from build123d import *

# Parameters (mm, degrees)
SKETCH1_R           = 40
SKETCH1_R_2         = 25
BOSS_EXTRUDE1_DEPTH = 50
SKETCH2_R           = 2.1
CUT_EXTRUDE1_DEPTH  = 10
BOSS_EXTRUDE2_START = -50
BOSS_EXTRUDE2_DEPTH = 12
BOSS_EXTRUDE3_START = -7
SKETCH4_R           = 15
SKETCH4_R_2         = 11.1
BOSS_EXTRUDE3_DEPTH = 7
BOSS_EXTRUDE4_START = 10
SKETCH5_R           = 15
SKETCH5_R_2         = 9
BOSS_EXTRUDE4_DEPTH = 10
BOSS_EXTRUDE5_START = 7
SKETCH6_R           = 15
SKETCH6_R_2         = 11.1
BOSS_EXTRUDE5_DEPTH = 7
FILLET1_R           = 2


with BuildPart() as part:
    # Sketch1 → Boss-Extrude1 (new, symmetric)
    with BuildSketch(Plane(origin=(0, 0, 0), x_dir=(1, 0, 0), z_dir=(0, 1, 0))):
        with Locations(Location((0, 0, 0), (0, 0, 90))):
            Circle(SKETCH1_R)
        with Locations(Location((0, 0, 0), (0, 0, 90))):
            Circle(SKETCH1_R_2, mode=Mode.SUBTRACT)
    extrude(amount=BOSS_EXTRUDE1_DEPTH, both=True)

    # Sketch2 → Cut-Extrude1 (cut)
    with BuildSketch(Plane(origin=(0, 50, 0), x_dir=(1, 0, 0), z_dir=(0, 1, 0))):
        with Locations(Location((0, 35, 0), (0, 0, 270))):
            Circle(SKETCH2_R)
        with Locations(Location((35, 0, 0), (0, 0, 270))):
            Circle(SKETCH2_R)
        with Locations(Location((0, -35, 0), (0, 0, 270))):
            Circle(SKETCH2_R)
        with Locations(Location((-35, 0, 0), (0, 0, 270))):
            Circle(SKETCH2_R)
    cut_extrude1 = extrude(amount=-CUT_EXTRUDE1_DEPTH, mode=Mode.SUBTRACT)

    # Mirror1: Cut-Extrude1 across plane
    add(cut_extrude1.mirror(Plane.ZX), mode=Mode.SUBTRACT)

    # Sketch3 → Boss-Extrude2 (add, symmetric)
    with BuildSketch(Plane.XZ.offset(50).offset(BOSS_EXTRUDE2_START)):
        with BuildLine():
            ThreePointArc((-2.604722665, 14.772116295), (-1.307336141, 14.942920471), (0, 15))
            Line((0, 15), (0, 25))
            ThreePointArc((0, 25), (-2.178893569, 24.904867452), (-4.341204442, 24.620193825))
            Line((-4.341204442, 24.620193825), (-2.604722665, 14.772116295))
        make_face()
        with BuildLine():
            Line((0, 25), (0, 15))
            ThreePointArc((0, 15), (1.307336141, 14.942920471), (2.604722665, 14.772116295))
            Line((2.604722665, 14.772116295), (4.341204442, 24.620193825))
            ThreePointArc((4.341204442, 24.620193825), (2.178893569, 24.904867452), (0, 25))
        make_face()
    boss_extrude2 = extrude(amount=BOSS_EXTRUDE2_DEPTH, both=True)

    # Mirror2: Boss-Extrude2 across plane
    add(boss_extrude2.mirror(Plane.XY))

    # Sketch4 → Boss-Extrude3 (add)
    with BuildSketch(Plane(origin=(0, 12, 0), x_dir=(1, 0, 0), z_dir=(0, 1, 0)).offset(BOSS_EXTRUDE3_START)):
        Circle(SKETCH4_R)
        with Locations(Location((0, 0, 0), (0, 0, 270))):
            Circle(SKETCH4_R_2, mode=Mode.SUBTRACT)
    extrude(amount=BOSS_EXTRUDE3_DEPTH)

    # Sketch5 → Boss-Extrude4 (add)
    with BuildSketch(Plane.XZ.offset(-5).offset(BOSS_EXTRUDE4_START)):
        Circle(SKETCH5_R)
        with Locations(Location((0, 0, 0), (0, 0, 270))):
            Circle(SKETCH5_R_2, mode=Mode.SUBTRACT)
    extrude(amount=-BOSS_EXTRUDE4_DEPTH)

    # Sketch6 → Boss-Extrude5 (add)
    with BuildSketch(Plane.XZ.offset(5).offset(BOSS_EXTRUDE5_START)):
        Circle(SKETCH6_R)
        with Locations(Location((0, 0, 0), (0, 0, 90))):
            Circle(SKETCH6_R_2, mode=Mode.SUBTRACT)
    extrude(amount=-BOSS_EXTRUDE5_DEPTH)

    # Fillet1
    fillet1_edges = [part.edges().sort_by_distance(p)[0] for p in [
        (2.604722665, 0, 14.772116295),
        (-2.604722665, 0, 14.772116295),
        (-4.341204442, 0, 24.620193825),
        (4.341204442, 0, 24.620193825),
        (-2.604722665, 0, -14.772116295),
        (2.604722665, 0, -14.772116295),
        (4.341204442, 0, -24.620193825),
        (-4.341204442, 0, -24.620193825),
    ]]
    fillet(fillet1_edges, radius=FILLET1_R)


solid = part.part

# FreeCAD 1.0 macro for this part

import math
import FreeCAD as App
import Part
import Sketcher

V = App.Vector
Q = App.Units.Quantity


def edges_at(feature, points):
    """Names of the edges that pass closest to the given points."""
    edges = feature.Shape.Edges
    near = lambda p: min(range(len(edges)), key=lambda i: edges[i].distToShape(Part.Vertex(*p))[0])
    return sorted({f"Edge{near(p) + 1}" for p in points})

doc = App.newDocument("Part")
body = doc.addObject("PartDesign::Body", "Body")

# Sketch on XZ plane
sketch1 = body.newObject("Sketcher::SketchObject", "Sketch")
sketch1.AttachmentSupport = (doc.getObject("XZ_Plane"), [""])
sketch1.MapMode = "FlatFace"
sketch1.addGeometry([
    Part.Circle(V(0, 0, 0), V(0, 0, 1), 40),
    Part.Circle(V(0, 0, 0), V(0, 0, 1), 25),
], False)
sketch1.addConstraint([
    Sketcher.Constraint("Coincident", 0, 3, -1, 1),
    Sketcher.Constraint("Coincident", 1, 3, -1, 1),
    Sketcher.Constraint("Diameter", 0, Q("80 mm")),
    Sketcher.Constraint("Diameter", 1, Q("50 mm")),
])
pad1 = body.newObject("PartDesign::Pad", "Pad")
pad1.Profile = sketch1
pad1.Length = 100
pad1.Midplane = True

# Sketch on XZ plane
sketch2 = body.newObject("Sketcher::SketchObject", "Sketch001")
sketch2.AttachmentSupport = (doc.getObject("XZ_Plane"), [""])
sketch2.MapMode = "FlatFace"
sketch2.AttachmentOffset = App.Placement(V(0, 0, -50), App.Rotation())
sketch2.addGeometry([
    Part.Circle(V(0, -35, 0), V(0, 0, 1), 2.1),
    Part.Circle(V(35, 0, 0), V(0, 0, 1), 2.1),
    Part.Circle(V(0, 35, 0), V(0, 0, 1), 2.1),
    Part.Circle(V(-35, 0, 0), V(0, 0, 1), 2.1),
], False)
sketch2.addConstraint([
    Sketcher.Constraint("Equal", 0, 1),
    Sketcher.Constraint("Equal", 1, 2),
    Sketcher.Constraint("Equal", 2, 3),
    Sketcher.Constraint("Symmetric", 0, 3, 2, 3, -1, 1),
    Sketcher.Constraint("Symmetric", 1, 3, 3, 3, -1, 1),
    Sketcher.Constraint("PointOnObject", 0, 3, -2),
    Sketcher.Constraint("PointOnObject", 1, 3, -1),
    Sketcher.Constraint("Diameter", 0, Q("4.2 mm")),
    Sketcher.Constraint("DistanceY", 0, 3, -1, 1, Q("35 mm")),
    Sketcher.Constraint("DistanceX", -1, 1, 1, 3, Q("35 mm")),
])
pocket1 = body.newObject("PartDesign::Pocket", "Pocket")
pocket1.Profile = sketch2
pocket1.Length = 10
pocket1.Reversed = True
doc.recompute()

mirrored = body.newObject("PartDesign::Mirrored", "Mirrored")
mirrored.Originals = [pocket1]
mirrored.MirrorPlane = (doc.getObject("XZ_Plane"), [""])
body.Tip = mirrored

# Sketch on XZ plane
sketch3 = body.newObject("Sketcher::SketchObject", "Sketch002")
sketch3.AttachmentSupport = (doc.getObject("XZ_Plane"), [""])
sketch3.MapMode = "FlatFace"
sketch3.addGeometry([
    Part.ArcOfCircle(Part.Circle(V(0, 0, 0), V(0, 0, 1), 15), math.radians(90), math.radians(100)),  # 0
    Part.ArcOfCircle(Part.Circle(V(0, 0, 0), V(0, 0, 1), 15), math.radians(80), math.radians(90)),  # 1
    Part.LineSegment(V(2.6, 14.8, 0), V(4.3, 24.6, 0)),  # 2
    Part.ArcOfCircle(Part.Circle(V(0, 0, 0), V(0, 0, 1), 25), math.radians(80), math.radians(90)),  # 3
    Part.ArcOfCircle(Part.Circle(V(0, 0, 0), V(0, 0, 1), 25), math.radians(90), math.radians(100)),  # 4
    Part.LineSegment(V(-4.3, 24.6, 0), V(-2.6, 14.8, 0)),  # 5
], False)
sketch3.addConstraint([
    Sketcher.Constraint("Tangent", 0, 1, 1, 2),
    Sketcher.Constraint("Coincident", 1, 1, 2, 1),
    Sketcher.Constraint("Coincident", 2, 2, 3, 1),
    Sketcher.Constraint("Tangent", 3, 2, 4, 1),
    Sketcher.Constraint("Coincident", 4, 2, 5, 1),
    Sketcher.Constraint("Coincident", 5, 2, 0, 2),
    Sketcher.Constraint("Coincident", 0, 3, -1, 1),
    Sketcher.Constraint("Coincident", 3, 3, -1, 1),
    Sketcher.Constraint("Equal", 0, 1),
    Sketcher.Constraint("Equal", 3, 4),
    Sketcher.Constraint("PointOnObject", 0, 1, -2),
    Sketcher.Constraint("PointOnObject", 3, 2, -2),
    Sketcher.Constraint("Horizontal", 2, 2, 4, 2),
    Sketcher.Constraint("Horizontal", 1, 1, 5, 2),
    Sketcher.Constraint("Radius", 0, Q("15 mm")),
    Sketcher.Constraint("Radius", 3, Q("25 mm")),
    Sketcher.Constraint("Angle", 2, Q("80 deg")),
    Sketcher.Constraint("DistanceX", 4, 2, 2, 2, Q("8.682409 mm")),
])
pad2 = body.newObject("PartDesign::Pad", "Pad001")
pad2.Profile = sketch3
pad2.Length = 24
pad2.Midplane = True
doc.recompute()

mirrored2 = body.newObject("PartDesign::Mirrored", "Mirrored001")
mirrored2.Originals = [pad2]
mirrored2.MirrorPlane = (doc.getObject("XY_Plane"), [""])
body.Tip = mirrored2

# Sketch on XZ plane
sketch4 = body.newObject("Sketcher::SketchObject", "Sketch003")
sketch4.AttachmentSupport = (doc.getObject("XZ_Plane"), [""])
sketch4.MapMode = "FlatFace"
sketch4.AttachmentOffset = App.Placement(V(0, 0, -5), App.Rotation())
sketch4.addGeometry([
    Part.Circle(V(0, 0, 0), V(0, 0, 1), 15),
    Part.Circle(V(0, 0, 0), V(0, 0, 1), 11),
], False)
sketch4.addConstraint([
    Sketcher.Constraint("Coincident", 0, 3, -1, 1),
    Sketcher.Constraint("Coincident", 1, 3, -1, 1),
    Sketcher.Constraint("Diameter", 0, Q("30 mm")),
    Sketcher.Constraint("Diameter", 1, Q("22.2 mm")),
])
pad3 = body.newObject("PartDesign::Pad", "Pad002")
pad3.Profile = sketch4
pad3.Length = 7
pad3.Reversed = True

# Sketch on XZ plane
sketch5 = body.newObject("Sketcher::SketchObject", "Sketch004")
sketch5.AttachmentSupport = (doc.getObject("XZ_Plane"), [""])
sketch5.MapMode = "FlatFace"
sketch5.AttachmentOffset = App.Placement(V(0, 0, 5), App.Rotation())
sketch5.addGeometry([
    Part.Circle(V(0, 0, 0), V(0, 0, 1), 15),
    Part.Circle(V(0, 0, 0), V(0, 0, 1), 9),
], False)
sketch5.addConstraint([
    Sketcher.Constraint("Coincident", 0, 3, -1, 1),
    Sketcher.Constraint("Coincident", 1, 3, -1, 1),
    Sketcher.Constraint("Diameter", 0, Q("30 mm")),
    Sketcher.Constraint("Diameter", 1, Q("18 mm")),
])
pad4 = body.newObject("PartDesign::Pad", "Pad003")
pad4.Profile = sketch5
pad4.Length = 10
pad4.Reversed = True

# Sketch on XZ plane
sketch6 = body.newObject("Sketcher::SketchObject", "Sketch005")
sketch6.AttachmentSupport = (doc.getObject("XZ_Plane"), [""])
sketch6.MapMode = "FlatFace"
sketch6.AttachmentOffset = App.Placement(V(0, 0, 12), App.Rotation())
sketch6.addGeometry([
    Part.Circle(V(0, 0, 0), V(0, 0, 1), 15),
    Part.Circle(V(0, 0, 0), V(0, 0, 1), 11),
], False)
sketch6.addConstraint([
    Sketcher.Constraint("Coincident", 0, 3, -1, 1),
    Sketcher.Constraint("Coincident", 1, 3, -1, 1),
    Sketcher.Constraint("Diameter", 0, Q("30 mm")),
    Sketcher.Constraint("Diameter", 1, Q("22.2 mm")),
])
pad5 = body.newObject("PartDesign::Pad", "Pad004")
pad5.Profile = sketch6
pad5.Length = 7
pad5.Reversed = True
doc.recompute()

fillet = body.newObject("PartDesign::Fillet", "Fillet")
fillet.Base = (pad5, edges_at(pad5, [
    (2.605, 3.5, 14.772),
    (-2.605, 3.5, 14.772),
    (-4.341, 0, 24.62),
    (4.341, 0, 24.62),
    (-2.605, 3.5, -14.772),
    (2.605, 3.5, -14.772),
    (4.341, 0, -24.62),
    (-4.341, 0, -24.62),
]))
fillet.Radius = 2

doc.recompute()
